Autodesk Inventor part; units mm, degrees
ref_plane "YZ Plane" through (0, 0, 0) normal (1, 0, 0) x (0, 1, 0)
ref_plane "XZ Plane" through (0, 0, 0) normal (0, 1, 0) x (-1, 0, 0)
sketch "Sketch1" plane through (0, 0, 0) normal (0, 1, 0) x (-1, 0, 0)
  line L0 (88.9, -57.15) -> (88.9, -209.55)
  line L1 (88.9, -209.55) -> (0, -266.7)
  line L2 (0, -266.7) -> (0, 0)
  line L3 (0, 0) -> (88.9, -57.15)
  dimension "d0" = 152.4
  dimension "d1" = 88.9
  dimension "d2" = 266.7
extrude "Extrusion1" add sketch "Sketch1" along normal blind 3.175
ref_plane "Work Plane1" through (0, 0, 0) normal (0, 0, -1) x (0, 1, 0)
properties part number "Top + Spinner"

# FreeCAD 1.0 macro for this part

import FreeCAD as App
import Part
import Sketcher

V = App.Vector
Q = App.Units.Quantity

doc = App.newDocument("Part")
params = doc.addObject("Spreadsheet::Sheet", "Params")
for row, (alias, value) in enumerate([
    ("sketch1_height", "6 in"),
    ("sketch1_height2", "10.5 in"),
    ("pad1_length", "0.125 in"),
], start=1):
    params.set(f"A{row}", alias)
    params.set(f"B{row}", "=" + value)
    params.setAlias(f"B{row}", alias)

body = doc.addObject("PartDesign::Body", "Body")

sketch1 = doc.addObject("Sketcher::SketchObject", "Sketch")
body.addObject(sketch1)
sketch1.AttachmentSupport = (doc.XZ_Plane, [""])
sketch1.MapMode = "FlatFace"
sketch1.addGeometry(Part.LineSegment(V(-88.9, -209.55, 0), V(-88.9, -57.15, 0)), False)
sketch1.addGeometry(Part.LineSegment(V(-88.9, -57.15, 0), V(0, 0, 0)), False)
sketch1.addGeometry(Part.LineSegment(V(0, 0, 0), V(0, -266.7, 0)), False)
sketch1.addGeometry(Part.LineSegment(V(0, -266.7, 0), V(-88.9, -209.55, 0)), False)
sketch1.addConstraint(Sketcher.Constraint("Coincident", 0, 2, 1, 1))
sketch1.addConstraint(Sketcher.Constraint("Coincident", 1, 2, 2, 1))
sketch1.addConstraint(Sketcher.Constraint("Coincident", 2, 2, 3, 1))
sketch1.addConstraint(Sketcher.Constraint("Coincident", 3, 2, 0, 1))
sketch1.addConstraint(Sketcher.Constraint("Vertical", 0))
sketch1.addConstraint(Sketcher.Constraint("Vertical", 2))
sketch1.addConstraint(Sketcher.Constraint("Coincident", 1, 2, -1, 1))
sketch1.addConstraint(Sketcher.Constraint("Equal", 1, 3))
sketch1.addConstraint(Sketcher.Constraint("DistanceY", 0, 1, 0, 2, Q("6 in")))
sketch1.addConstraint(Sketcher.Constraint("DistanceY", 2, 2, 2, 1, Q("10.5 in")))
sketch1.addConstraint(Sketcher.Constraint("DistanceX", 0, 2, -1, 1, Q("3.5 in")))
sketch1.setExpression("Constraints[8]", "Params.sketch1_height")
sketch1.setExpression("Constraints[9]", "Params.sketch1_height2")
pad1 = doc.addObject("PartDesign::Pad", "Pad")
body.addObject(pad1)
pad1.Profile = sketch1
pad1.setExpression("Length", "Params.pad1_length")
pad1.Reversed = True

doc.recompute()
